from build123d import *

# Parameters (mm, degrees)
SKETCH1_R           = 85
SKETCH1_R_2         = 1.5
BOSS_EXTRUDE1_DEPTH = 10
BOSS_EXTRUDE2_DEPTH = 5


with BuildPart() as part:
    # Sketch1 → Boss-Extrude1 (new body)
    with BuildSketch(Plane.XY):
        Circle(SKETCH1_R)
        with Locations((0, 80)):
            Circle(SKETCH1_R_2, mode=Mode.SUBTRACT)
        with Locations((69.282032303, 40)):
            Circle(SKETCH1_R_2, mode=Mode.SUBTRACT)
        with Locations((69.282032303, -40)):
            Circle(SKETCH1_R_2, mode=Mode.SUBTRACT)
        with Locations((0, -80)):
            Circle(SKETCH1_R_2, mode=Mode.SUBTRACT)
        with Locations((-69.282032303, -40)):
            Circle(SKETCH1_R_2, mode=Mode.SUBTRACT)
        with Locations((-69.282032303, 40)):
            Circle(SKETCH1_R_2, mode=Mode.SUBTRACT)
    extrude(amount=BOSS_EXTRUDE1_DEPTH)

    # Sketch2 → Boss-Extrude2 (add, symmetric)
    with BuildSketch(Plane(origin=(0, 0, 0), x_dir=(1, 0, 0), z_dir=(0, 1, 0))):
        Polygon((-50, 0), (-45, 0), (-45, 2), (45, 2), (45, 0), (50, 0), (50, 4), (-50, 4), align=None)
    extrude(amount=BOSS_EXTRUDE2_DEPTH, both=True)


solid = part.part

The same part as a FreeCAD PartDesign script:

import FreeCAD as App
import Part
import Sketcher
Q = App.Units.Quantity

doc = App.newDocument("Part")
body = doc.addObject("PartDesign::Body", "Body")

# Sketch on XY plane
sketch1 = body.newObject("Sketcher::SketchObject", "Sketch")
sketch1.AttachmentSupport = (doc.getObject("XY_Plane"), [""])
sketch1.MapMode = "FlatFace"
sketch1.addGeometry([
    Part.Circle(App.Vector(0, 0, 0), App.Vector(0, 0, 1), 85),  # 0
    Part.Circle(App.Vector(-69.3, -40, 0), App.Vector(0, 0, 1), 1.5),  # 1
    Part.Circle(App.Vector(0, -80, 0), App.Vector(0, 0, 1), 1.5),  # 2
    Part.Circle(App.Vector(69.3, -40, 0), App.Vector(0, 0, 1), 1.5),  # 3
    Part.Circle(App.Vector(-69.3, 40, 0), App.Vector(0, 0, 1), 1.5),  # 4
    Part.Circle(App.Vector(69.3, 40, 0), App.Vector(0, 0, 1), 1.5),  # 5
    Part.Circle(App.Vector(0, 80, 0), App.Vector(0, 0, 1), 1.5),  # 6
], False)
sketch1.addConstraint([
    Sketcher.Constraint("Coincident", 0, 3, -1, 1),
    Sketcher.Constraint("Equal", 1, 2),
    Sketcher.Constraint("Equal", 2, 3),
    Sketcher.Constraint("Equal", 3, 4),
    Sketcher.Constraint("Equal", 4, 5),
    Sketcher.Constraint("Equal", 5, 6),
    Sketcher.Constraint("Symmetric", 3, 3, 4, 3, -1, 1),
    Sketcher.Constraint("Symmetric", 1, 3, 5, 3, -1, 1),
    Sketcher.Constraint("Symmetric", 2, 3, 6, 3, -1, 1),
    Sketcher.Constraint("Symmetric", 1, 3, 3, 3, -2),
    Sketcher.Constraint("PointOnObject", 2, 3, -2),
    Sketcher.Constraint("Diameter", 0, Q("170 mm")),
    Sketcher.Constraint("Diameter", 1, Q("3 mm")),
    Sketcher.Constraint("DistanceY", 1, 3, -1, 1, Q("40 mm")),
    Sketcher.Constraint("DistanceY", 2, 3, -1, 1, Q("80 mm")),
    Sketcher.Constraint("DistanceX", 1, 3, -1, 1, Q("69.282032 mm")),
])
pad1 = body.newObject("PartDesign::Pad", "Pad")
pad1.Profile = sketch1
pad1.Length = 10

# Sketch on XZ plane
sketch2 = body.newObject("Sketcher::SketchObject", "Sketch001")
sketch2.AttachmentSupport = (doc.getObject("XZ_Plane"), [""])
sketch2.MapMode = "FlatFace"
sketch2.addGeometry([
    Part.LineSegment(App.Vector(-50, 0, 0), App.Vector(-45, 0, 0)),  # 0
    Part.LineSegment(App.Vector(-45, 0, 0), App.Vector(-45, -2, 0)),  # 1
    Part.LineSegment(App.Vector(-45, -2, 0), App.Vector(45, -2, 0)),  # 2
    Part.LineSegment(App.Vector(45, -2, 0), App.Vector(45, 0, 0)),  # 3
    Part.LineSegment(App.Vector(45, 0, 0), App.Vector(50, 0, 0)),  # 4
    Part.LineSegment(App.Vector(50, 0, 0), App.Vector(50, -4, 0)),  # 5
    Part.LineSegment(App.Vector(50, -4, 0), App.Vector(-50, -4, 0)),  # 6
    Part.LineSegment(App.Vector(-50, -4, 0), App.Vector(-50, 0, 0)),  # 7
], False)
sketch2.addConstraint([
    Sketcher.Constraint("Coincident", 0, 2, 1, 1),
    Sketcher.Constraint("Coincident", 1, 2, 2, 1),
    Sketcher.Constraint("Coincident", 2, 2, 3, 1),
    Sketcher.Constraint("Coincident", 3, 2, 4, 1),
    Sketcher.Constraint("Coincident", 4, 2, 5, 1),
    Sketcher.Constraint("Coincident", 5, 2, 6, 1),
    Sketcher.Constraint("Coincident", 6, 2, 7, 1),
    Sketcher.Constraint("Coincident", 7, 2, 0, 1),
    Sketcher.Constraint("Horizontal", 0),
    Sketcher.Constraint("Vertical", 1),
    Sketcher.Constraint("Horizontal", 2),
    Sketcher.Constraint("Vertical", 3),
    Sketcher.Constraint("Horizontal", 4),
    Sketcher.Constraint("Vertical", 5),
    Sketcher.Constraint("Horizontal", 6),
    Sketcher.Constraint("Vertical", 7),
    Sketcher.Constraint("Symmetric", 0, 2, 3, 2, -1, 1),
    Sketcher.Constraint("Symmetric", 4, 2, 7, 2, -2),
    Sketcher.Constraint("DistanceX", 0, 1, 0, 2, Q("5 mm")),
    Sketcher.Constraint("DistanceX", 2, 1, 2, 2, Q("90 mm")),
    Sketcher.Constraint("DistanceY", 1, 2, 1, 1, Q("2 mm")),
    Sketcher.Constraint("DistanceY", 5, 2, 5, 1, Q("4 mm")),
])
pad2 = body.newObject("PartDesign::Pad", "Pad001")
pad2.Profile = sketch2
pad2.Length = 10
pad2.Midplane = True

doc.recompute()
